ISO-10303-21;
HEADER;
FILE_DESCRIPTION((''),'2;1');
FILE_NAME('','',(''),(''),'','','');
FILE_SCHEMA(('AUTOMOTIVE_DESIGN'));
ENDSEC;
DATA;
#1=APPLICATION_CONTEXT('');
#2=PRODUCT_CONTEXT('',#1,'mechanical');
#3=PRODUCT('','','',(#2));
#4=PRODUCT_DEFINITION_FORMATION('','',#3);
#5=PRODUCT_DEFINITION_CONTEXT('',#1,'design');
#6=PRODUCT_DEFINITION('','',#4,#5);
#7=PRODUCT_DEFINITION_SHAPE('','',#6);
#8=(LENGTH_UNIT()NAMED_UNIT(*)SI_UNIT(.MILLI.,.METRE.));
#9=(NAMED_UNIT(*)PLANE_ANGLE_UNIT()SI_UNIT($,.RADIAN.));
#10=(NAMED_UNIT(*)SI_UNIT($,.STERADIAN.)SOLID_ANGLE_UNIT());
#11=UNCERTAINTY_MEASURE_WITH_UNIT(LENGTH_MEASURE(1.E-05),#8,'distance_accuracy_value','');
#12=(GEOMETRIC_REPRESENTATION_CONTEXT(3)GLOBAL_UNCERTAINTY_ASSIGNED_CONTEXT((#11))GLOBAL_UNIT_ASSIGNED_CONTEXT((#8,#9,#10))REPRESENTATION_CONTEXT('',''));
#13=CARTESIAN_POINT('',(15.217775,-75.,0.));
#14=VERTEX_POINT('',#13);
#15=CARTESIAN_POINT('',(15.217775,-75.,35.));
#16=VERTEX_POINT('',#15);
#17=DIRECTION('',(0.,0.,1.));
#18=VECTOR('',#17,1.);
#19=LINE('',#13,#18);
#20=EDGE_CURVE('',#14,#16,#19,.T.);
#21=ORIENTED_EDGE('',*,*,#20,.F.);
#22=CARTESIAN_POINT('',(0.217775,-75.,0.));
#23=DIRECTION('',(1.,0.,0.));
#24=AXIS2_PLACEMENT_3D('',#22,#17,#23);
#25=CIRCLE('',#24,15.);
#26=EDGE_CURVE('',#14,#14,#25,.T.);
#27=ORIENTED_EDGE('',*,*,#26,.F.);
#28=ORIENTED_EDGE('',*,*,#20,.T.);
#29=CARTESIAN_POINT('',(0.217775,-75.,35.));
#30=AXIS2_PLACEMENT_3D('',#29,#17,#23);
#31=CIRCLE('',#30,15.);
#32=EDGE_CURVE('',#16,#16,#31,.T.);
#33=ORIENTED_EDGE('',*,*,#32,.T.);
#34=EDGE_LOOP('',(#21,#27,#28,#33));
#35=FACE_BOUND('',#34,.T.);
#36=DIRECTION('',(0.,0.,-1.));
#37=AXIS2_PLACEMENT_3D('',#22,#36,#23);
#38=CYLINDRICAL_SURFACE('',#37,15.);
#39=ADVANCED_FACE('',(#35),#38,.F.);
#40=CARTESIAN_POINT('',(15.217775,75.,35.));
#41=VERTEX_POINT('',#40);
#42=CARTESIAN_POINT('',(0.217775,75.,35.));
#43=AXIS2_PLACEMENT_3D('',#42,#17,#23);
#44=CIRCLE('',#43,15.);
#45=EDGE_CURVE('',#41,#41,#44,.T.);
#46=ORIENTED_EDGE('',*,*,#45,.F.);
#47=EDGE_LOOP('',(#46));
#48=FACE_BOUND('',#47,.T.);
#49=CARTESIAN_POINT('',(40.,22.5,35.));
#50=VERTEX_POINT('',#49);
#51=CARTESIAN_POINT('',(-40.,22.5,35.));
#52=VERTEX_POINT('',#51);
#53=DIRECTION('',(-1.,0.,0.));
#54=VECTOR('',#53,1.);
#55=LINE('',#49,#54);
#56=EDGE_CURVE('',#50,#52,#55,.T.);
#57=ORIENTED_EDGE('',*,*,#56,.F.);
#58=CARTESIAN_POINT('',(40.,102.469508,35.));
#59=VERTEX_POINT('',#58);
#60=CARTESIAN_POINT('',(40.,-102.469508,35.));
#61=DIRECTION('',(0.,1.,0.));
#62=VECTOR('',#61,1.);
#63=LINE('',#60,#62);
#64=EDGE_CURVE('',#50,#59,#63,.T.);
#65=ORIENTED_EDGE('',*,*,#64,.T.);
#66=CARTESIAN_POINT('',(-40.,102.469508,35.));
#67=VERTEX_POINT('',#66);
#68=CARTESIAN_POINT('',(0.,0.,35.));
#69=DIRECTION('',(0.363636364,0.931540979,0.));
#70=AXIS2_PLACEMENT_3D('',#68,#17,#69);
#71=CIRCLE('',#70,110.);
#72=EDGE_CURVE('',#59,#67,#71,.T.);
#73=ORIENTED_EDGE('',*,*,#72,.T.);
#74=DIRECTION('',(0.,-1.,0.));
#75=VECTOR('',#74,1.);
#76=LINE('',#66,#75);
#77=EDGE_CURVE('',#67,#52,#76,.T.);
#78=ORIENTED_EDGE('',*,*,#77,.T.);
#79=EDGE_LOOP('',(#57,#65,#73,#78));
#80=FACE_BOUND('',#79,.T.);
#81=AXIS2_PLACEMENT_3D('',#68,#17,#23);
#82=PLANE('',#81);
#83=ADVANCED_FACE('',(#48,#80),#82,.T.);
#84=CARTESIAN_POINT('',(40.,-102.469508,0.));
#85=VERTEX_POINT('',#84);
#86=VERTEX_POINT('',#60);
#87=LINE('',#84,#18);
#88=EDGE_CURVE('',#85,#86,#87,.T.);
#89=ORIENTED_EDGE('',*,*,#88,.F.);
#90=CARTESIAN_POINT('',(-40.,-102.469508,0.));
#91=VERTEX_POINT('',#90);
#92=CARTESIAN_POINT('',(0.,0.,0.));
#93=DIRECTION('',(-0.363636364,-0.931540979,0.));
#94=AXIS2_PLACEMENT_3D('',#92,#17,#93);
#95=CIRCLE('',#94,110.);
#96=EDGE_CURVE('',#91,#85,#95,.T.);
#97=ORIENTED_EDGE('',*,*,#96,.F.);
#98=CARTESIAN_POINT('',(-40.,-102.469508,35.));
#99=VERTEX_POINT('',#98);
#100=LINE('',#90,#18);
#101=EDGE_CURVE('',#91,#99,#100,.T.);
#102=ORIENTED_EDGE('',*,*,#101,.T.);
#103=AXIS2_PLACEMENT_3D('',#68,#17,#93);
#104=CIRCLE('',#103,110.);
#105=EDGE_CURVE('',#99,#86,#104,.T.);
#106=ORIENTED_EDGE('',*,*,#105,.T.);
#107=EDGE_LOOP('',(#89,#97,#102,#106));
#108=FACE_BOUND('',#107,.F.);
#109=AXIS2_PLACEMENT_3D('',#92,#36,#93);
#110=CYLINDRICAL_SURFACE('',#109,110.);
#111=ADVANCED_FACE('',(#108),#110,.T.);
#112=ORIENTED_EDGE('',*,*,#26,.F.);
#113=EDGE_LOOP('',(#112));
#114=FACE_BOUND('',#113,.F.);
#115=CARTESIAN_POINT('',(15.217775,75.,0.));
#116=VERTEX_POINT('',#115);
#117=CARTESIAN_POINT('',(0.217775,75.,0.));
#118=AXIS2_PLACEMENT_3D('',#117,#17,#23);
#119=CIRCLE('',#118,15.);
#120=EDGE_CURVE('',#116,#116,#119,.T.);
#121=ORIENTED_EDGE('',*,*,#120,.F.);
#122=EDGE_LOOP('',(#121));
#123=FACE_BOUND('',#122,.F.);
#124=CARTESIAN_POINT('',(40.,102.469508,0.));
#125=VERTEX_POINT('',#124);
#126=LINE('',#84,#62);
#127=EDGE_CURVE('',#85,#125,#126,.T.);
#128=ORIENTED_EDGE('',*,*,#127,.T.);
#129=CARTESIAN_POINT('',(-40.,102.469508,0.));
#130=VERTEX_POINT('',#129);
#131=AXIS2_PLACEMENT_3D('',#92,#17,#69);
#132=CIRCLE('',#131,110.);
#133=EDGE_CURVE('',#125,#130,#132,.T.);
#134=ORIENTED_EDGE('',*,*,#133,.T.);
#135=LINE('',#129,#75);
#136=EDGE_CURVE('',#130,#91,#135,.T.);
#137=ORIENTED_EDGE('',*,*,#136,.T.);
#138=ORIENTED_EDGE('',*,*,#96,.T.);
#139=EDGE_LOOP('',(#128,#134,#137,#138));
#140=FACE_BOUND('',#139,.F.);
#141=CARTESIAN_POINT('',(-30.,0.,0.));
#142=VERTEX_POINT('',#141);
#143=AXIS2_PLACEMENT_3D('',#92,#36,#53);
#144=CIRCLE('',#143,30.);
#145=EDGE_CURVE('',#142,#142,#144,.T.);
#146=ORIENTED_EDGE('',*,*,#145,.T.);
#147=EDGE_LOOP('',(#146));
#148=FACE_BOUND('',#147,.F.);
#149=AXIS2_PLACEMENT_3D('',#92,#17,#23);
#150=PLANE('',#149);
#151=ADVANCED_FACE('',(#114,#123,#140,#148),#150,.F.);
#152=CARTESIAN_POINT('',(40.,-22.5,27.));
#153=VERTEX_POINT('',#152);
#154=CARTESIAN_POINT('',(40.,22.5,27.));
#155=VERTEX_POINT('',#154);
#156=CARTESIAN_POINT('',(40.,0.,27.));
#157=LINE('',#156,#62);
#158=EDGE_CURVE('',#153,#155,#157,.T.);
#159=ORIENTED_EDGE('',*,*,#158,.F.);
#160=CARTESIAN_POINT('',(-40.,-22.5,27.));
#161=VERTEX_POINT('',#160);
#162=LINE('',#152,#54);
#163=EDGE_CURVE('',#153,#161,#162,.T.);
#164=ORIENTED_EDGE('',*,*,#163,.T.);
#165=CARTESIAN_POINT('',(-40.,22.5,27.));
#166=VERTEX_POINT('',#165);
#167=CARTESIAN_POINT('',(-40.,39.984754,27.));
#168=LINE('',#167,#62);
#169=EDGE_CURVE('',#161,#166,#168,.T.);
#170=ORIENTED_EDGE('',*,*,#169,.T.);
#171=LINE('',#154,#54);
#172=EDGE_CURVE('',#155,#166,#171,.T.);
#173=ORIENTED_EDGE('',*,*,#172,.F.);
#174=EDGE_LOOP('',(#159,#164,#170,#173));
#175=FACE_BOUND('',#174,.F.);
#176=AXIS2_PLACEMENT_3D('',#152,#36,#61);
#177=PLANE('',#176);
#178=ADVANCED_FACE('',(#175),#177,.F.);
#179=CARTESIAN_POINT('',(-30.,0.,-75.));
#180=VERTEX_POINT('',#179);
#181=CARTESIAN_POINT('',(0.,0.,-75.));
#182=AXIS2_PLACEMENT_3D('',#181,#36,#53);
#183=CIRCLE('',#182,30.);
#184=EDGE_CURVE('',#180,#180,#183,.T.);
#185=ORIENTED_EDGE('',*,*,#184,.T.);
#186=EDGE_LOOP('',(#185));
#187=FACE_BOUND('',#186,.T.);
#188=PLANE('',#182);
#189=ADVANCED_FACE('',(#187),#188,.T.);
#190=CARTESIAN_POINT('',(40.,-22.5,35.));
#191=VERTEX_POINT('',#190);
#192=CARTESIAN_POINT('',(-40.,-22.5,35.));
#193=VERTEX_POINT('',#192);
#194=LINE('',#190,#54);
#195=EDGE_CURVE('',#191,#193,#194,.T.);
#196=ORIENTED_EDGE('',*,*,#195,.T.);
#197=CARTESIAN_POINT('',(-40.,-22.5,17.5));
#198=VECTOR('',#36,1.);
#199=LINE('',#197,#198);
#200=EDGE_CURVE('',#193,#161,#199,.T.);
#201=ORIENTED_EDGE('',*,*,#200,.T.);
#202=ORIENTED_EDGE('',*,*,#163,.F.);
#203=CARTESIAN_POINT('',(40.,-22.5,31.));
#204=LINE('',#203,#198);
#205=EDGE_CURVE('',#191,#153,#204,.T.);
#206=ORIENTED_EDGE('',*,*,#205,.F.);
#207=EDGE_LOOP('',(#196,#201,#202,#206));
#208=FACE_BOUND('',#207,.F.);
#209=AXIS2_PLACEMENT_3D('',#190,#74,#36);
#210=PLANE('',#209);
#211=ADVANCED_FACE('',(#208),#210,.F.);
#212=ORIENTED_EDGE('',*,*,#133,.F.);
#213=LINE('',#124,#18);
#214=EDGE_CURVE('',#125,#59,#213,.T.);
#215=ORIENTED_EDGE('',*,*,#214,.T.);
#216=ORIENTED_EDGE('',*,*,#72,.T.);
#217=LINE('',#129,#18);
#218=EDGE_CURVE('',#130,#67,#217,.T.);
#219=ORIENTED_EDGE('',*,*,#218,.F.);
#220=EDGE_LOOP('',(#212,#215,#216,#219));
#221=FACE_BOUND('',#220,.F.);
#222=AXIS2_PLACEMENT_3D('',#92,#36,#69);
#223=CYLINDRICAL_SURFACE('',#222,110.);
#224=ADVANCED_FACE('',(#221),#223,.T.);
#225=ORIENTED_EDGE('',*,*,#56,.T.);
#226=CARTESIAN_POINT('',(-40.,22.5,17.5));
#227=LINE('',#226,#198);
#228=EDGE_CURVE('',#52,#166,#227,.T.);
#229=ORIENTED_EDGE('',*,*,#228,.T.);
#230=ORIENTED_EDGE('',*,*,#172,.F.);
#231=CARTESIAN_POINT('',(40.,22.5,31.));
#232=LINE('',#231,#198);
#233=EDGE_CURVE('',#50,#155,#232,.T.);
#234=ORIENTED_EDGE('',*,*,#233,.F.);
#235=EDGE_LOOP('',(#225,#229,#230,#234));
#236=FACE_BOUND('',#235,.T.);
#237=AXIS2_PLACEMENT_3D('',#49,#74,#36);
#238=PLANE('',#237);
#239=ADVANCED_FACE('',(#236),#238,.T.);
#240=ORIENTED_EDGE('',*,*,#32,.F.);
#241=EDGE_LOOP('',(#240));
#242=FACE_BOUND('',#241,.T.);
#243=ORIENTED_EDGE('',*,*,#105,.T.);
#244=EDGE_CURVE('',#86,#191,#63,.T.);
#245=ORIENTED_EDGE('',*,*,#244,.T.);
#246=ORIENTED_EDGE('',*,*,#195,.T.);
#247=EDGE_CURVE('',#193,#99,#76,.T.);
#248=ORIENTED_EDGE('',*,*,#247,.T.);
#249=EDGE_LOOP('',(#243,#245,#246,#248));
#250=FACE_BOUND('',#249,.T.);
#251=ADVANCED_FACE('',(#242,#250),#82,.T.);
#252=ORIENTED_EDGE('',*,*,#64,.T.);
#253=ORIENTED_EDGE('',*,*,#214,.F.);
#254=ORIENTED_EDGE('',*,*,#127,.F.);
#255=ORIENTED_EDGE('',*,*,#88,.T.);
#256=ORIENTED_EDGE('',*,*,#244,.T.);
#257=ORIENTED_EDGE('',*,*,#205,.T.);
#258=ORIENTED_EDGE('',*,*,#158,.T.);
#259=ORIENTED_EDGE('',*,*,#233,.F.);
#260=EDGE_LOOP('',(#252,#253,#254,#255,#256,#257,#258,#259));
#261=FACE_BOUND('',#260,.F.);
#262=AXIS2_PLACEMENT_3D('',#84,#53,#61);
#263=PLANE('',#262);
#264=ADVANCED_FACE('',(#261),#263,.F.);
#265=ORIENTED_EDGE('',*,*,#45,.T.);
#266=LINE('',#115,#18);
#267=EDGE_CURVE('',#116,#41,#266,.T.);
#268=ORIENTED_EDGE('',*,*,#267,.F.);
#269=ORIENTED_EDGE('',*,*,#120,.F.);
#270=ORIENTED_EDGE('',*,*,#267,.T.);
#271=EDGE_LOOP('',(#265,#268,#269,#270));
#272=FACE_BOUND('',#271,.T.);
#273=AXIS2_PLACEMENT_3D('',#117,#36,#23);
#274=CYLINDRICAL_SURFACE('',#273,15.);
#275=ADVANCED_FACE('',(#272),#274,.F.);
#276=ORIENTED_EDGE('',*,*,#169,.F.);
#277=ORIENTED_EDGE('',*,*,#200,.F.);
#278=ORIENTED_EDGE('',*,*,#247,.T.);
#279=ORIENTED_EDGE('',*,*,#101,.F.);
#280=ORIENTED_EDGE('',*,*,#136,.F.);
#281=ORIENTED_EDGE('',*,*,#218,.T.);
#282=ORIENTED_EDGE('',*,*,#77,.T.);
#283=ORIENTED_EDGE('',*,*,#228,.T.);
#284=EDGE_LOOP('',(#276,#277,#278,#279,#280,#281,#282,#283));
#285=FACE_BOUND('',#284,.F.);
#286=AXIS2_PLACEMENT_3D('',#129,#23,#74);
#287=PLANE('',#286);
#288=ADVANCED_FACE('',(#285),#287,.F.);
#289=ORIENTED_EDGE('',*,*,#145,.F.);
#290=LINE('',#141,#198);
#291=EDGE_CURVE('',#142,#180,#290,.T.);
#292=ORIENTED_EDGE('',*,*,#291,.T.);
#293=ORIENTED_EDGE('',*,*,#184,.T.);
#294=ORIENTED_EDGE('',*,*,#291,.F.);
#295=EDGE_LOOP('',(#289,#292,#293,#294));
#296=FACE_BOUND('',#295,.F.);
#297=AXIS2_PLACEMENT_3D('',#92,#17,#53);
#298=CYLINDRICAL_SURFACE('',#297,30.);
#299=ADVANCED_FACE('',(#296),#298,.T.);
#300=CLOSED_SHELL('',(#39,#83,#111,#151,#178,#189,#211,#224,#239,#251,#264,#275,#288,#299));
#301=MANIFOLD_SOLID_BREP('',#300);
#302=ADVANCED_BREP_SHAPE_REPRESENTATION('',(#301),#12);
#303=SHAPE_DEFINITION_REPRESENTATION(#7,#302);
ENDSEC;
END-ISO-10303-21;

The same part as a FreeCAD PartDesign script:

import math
import FreeCAD as App
import Part
import Sketcher
from FreeCAD import Vector
Q = App.Units.Quantity


def add_polygon(sketch, points):
    """Adds a closed chain of lines whose ends are joined by coincident constraints."""
    first, n = sketch.GeometryCount, len(points)
    for a, b in zip(points, points[1:] + points[:1]):
        sketch.addGeometry(Part.LineSegment(App.Vector(*a, 0), App.Vector(*b, 0)), False)
    for i in range(n):
        sketch.addConstraint(Sketcher.Constraint("Coincident", first + i, 2, first + (i + 1) % n, 1))

doc = App.newDocument("Part")
body = doc.addObject("PartDesign::Body", "Body")

# Sketch on XY plane
sketch1 = body.newObject("Sketcher::SketchObject", "Sketch")
sketch1.AttachmentSupport = (doc.getObject("XY_Plane"), [""])
sketch1.MapMode = "FlatFace"
sketch1.addGeometry([
    Part.LineSegment(Vector(40, -102.469508, 0), Vector(40, 102.469508, 0)),  # 0
    Part.ArcOfCircle(Part.Circle(Vector(0, 0, 0), Vector(0, 0, 1), 110), math.radians(68.676314), math.radians(111.323686)),  # 1
    Part.LineSegment(Vector(-40, 102.469508, 0), Vector(-40, -102.469508, 0)),  # 2
    Part.ArcOfCircle(Part.Circle(Vector(0, 0, 0), Vector(0, 0, 1), 110), math.radians(-111.323686), math.radians(-68.676314)),  # 3
    Part.Circle(Vector(0.217775, -75, 0), Vector(0, 0, 1), 15),  # 4
    Part.Circle(Vector(0.217775, 75, 0), Vector(0, 0, 1), 15),  # 5
], False)
sketch1.addConstraint([
    Sketcher.Constraint("Coincident", 0, 2, 1, 1),
    Sketcher.Constraint("Coincident", 1, 2, 2, 1),
    Sketcher.Constraint("Coincident", 2, 2, 3, 1),
    Sketcher.Constraint("Coincident", 3, 2, 0, 1),
    Sketcher.Constraint("Vertical", 0),
    Sketcher.Constraint("Vertical", 2),
    Sketcher.Constraint("Coincident", 1, 3, -1, 1),
    Sketcher.Constraint("Coincident", 3, 3, -1, 1),
    Sketcher.Constraint("Equal", 1, 3),
    Sketcher.Constraint("Equal", 4, 5),
    Sketcher.Constraint("Symmetric", 4, 3, 5, 3, -1),
    Sketcher.Constraint("Horizontal", 0, 2, 1, 2),
    Sketcher.Constraint("Diameter", 4, Q("30 mm")),
    Sketcher.Constraint("Radius", 1, Q("110 mm")),
    Sketcher.Constraint("DistanceY", 4, 3, -1, 1, Q("75 mm")),
    Sketcher.Constraint("DistanceX", -1, 1, 0, 2, Q("40 mm")),
    Sketcher.Constraint("DistanceX", -1, 1, 4, 3, Q("0.217775 mm")),
])
pad1 = body.newObject("PartDesign::Pad", "Pad")
pad1.Profile = sketch1
pad1.Length = 35

# Sketch on YZ plane
sketch2 = body.newObject("Sketcher::SketchObject", "Sketch001")
sketch2.AttachmentSupport = (doc.getObject("YZ_Plane"), [""])
sketch2.MapMode = "FlatFace"
sketch2.AttachmentOffset = App.Placement(Vector(0, 0, 40), App.Rotation())
add_polygon(sketch2, [(22.5, 35), (-22.5, 35), (-22.5, 27), (22.5, 27)])  # lines 0-3
sketch2.addConstraint([
    Sketcher.Constraint("Horizontal", 0),
    Sketcher.Constraint("Vertical", 1),
    Sketcher.Constraint("Horizontal", 2),
    Sketcher.Constraint("Vertical", 3),
    Sketcher.Constraint("DistanceX", 0, 2, 0, 1, Q("45 mm")),
    Sketcher.Constraint("DistanceY", 1, 2, 1, 1, Q("8 mm")),
    Sketcher.Constraint("DistanceY", -1, 1, 0, 2, Q("35 mm")),
    Sketcher.Constraint("DistanceX", 0, 2, -1, 1, Q("22.5 mm")),
])
pocket1 = body.newObject("PartDesign::Pocket", "Pocket")
pocket1.Profile = sketch2
pocket1.Length = 85

# Sketch on XY plane
sketch3 = body.newObject("Sketcher::SketchObject", "Sketch002")
sketch3.AttachmentSupport = (doc.getObject("XY_Plane"), [""])
sketch3.MapMode = "FlatFace"
sketch3.addGeometry(Part.Circle(Vector(0, 0, 0), Vector(0, 0, 1), 30), False)
sketch3.addConstraint([
    Sketcher.Constraint("Coincident", 0, 3, -1, 1),
    Sketcher.Constraint("Diameter", 0, Q("60 mm")),
])
pad2 = body.newObject("PartDesign::Pad", "Pad001")
pad2.Profile = sketch3
pad2.Length = 75
pad2.Reversed = True

doc.recompute()
